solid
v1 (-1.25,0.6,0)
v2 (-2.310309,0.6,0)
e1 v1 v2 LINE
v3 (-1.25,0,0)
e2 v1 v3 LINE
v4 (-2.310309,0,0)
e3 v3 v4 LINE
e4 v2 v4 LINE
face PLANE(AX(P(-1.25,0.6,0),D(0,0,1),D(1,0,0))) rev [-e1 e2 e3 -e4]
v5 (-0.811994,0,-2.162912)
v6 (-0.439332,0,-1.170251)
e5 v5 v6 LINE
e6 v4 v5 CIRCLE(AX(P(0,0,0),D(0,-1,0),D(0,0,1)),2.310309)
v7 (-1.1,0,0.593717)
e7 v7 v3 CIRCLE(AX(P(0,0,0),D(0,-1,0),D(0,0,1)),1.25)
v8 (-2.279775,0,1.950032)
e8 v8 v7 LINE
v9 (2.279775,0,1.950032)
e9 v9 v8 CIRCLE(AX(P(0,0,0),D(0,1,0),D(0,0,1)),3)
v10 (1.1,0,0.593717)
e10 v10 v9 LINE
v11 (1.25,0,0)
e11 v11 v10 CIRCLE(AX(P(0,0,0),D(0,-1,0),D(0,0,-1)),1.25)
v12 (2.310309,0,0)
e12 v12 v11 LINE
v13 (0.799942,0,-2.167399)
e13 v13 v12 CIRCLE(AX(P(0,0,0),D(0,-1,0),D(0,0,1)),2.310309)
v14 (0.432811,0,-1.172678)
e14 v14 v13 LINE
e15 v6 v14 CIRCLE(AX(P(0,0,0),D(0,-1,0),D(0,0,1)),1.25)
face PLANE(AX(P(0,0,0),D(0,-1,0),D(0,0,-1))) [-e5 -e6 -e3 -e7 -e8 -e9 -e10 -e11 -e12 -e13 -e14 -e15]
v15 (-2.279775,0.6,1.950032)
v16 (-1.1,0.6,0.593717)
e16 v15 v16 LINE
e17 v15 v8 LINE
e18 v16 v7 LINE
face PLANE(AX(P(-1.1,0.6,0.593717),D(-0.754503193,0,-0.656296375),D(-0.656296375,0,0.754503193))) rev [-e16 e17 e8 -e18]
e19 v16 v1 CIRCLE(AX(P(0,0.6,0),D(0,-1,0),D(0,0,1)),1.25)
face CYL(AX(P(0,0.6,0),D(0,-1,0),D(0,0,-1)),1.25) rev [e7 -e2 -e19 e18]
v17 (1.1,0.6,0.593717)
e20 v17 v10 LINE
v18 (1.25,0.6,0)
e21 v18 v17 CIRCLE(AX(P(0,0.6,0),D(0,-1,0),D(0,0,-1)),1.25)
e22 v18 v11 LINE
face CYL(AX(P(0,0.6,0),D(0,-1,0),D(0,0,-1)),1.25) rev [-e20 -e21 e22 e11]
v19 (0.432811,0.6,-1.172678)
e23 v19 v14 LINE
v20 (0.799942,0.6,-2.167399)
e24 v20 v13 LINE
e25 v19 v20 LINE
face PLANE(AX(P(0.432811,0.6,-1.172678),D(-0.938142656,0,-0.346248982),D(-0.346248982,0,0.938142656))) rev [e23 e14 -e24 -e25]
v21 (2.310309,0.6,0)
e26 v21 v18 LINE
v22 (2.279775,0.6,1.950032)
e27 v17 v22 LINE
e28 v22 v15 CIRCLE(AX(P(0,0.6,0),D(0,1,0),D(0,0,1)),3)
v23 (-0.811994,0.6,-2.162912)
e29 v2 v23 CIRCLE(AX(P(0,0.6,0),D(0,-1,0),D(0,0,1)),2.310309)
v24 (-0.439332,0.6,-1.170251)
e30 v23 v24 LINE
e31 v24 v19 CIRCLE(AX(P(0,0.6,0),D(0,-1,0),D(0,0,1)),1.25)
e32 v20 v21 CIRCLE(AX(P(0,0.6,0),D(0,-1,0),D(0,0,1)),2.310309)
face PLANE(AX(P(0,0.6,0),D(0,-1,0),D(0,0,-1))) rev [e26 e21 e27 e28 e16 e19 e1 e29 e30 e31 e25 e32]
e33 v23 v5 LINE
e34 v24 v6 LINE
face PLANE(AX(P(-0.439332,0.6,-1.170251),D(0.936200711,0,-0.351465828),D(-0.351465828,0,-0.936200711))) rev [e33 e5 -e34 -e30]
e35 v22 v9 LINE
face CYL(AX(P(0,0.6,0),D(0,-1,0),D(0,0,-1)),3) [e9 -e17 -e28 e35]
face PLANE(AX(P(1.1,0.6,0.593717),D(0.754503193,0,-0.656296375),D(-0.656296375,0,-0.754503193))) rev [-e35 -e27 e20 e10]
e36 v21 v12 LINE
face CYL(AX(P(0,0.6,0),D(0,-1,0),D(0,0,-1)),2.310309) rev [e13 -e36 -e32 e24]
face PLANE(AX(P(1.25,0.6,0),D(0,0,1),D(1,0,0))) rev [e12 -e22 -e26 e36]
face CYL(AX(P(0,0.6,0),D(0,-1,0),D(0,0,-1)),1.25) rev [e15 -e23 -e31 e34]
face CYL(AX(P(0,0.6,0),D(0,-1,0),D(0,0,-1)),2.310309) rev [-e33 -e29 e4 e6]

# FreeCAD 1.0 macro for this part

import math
import FreeCAD as App
import Part
import Sketcher
Q = App.Units.Quantity

doc = App.newDocument("Part")
body = doc.addObject("PartDesign::Body", "Body")

# Sketch on XZ plane
sketch1 = body.newObject("Sketcher::SketchObject", "Sketch")
sketch1.AttachmentSupport = (doc.getObject("XZ_Plane"), [""])
sketch1.MapMode = "FlatFace"
sketch1.addGeometry([
    Part.LineSegment(App.Vector(-2.279775, 1.950032, 0), App.Vector(-1.1, 0.593717, 0)),  # 0
    Part.ArcOfCircle(Part.Circle(App.Vector(0, 0, 0), App.Vector(0, 0, 1), 1.25), math.radians(151.642364), math.radians(180)),  # 1
    Part.LineSegment(App.Vector(-1.25, 0, 0), App.Vector(-2.310309, 0, 0)),  # 2
    Part.ArcOfCircle(Part.Circle(App.Vector(0, 0, 0), App.Vector(0, 0, 1), 2.310309), math.radians(-180), math.radians(-110.576998)),  # 3
    Part.LineSegment(App.Vector(-0.811994, -2.162912, 0), App.Vector(-0.439332, -1.170251, 0)),  # 4
    Part.ArcOfCircle(Part.Circle(App.Vector(0, 0, 0), App.Vector(0, 0, 1), 1.25), math.radians(-110.576998), math.radians(-69.741943)),  # 5
    Part.LineSegment(App.Vector(0.432811, -1.172678, 0), App.Vector(0.799942, -2.167399, 0)),  # 6
    Part.ArcOfCircle(Part.Circle(App.Vector(0, 0, 0), App.Vector(0, 0, 1), 2.310309), math.radians(-69.741943), math.radians(0)),  # 7
    Part.LineSegment(App.Vector(2.310309, 0, 0), App.Vector(1.25, 0, 0)),  # 8
    Part.ArcOfCircle(Part.Circle(App.Vector(0, 0, 0), App.Vector(0, 0, 1), 1.25), math.radians(0), math.radians(28.357636)),  # 9
    Part.LineSegment(App.Vector(1.1, 0.593717, 0), App.Vector(2.279775, 1.950032, 0)),  # 10
    Part.ArcOfCircle(Part.Circle(App.Vector(0, 0, 0), App.Vector(0, 0, 1), 3), math.radians(139.457601), math.radians(400.542399)),  # 11
], False)
sketch1.addConstraint([
    Sketcher.Constraint("Coincident", 0, 2, 1, 1),
    Sketcher.Constraint("Coincident", 1, 2, 2, 1),
    Sketcher.Constraint("Coincident", 2, 2, 3, 1),
    Sketcher.Constraint("Coincident", 3, 2, 4, 1),
    Sketcher.Constraint("Coincident", 4, 2, 5, 1),
    Sketcher.Constraint("Coincident", 5, 2, 6, 1),
    Sketcher.Constraint("Coincident", 6, 2, 7, 1),
    Sketcher.Constraint("Coincident", 7, 2, 8, 1),
    Sketcher.Constraint("Coincident", 8, 2, 9, 1),
    Sketcher.Constraint("Coincident", 9, 2, 10, 1),
    Sketcher.Constraint("Coincident", 10, 2, 11, 2),
    Sketcher.Constraint("Coincident", 11, 1, 0, 1),
    Sketcher.Constraint("Horizontal", 2),
    Sketcher.Constraint("Horizontal", 8),
    Sketcher.Constraint("Coincident", 1, 3, -1, 1),
    Sketcher.Constraint("Coincident", 3, 3, -1, 1),
    Sketcher.Constraint("Coincident", 5, 3, -1, 1),
    Sketcher.Constraint("Coincident", 7, 3, -1, 1),
    Sketcher.Constraint("Coincident", 9, 3, -1, 1),
    Sketcher.Constraint("Coincident", 11, 3, -1, 1),
    Sketcher.Constraint("Equal", 1, 5),
    Sketcher.Constraint("Equal", 3, 7),
    Sketcher.Constraint("Equal", 5, 9),
    Sketcher.Constraint("PointOnObject", 1, 2, -1),
    Sketcher.Constraint("PointOnObject", 7, 2, -1),
    Sketcher.Constraint("Horizontal", 0, 2, 9, 2),
    Sketcher.Constraint("Horizontal", 10, 2, 11, 1),
    Sketcher.Constraint("Radius", 11, Q("3 mm")),
    Sketcher.Constraint("Radius", 1, Q("1.25 mm")),
    Sketcher.Constraint("DistanceX", 0, 2, -1, 1, Q("1.1 mm")),
    Sketcher.Constraint("Radius", 3, Q("2.310309 mm")),
    Sketcher.Constraint("DistanceY", 6, 2, -1, 1, Q("2.167399 mm")),
    Sketcher.Constraint("DistanceY", 4, 2, -1, 1, Q("1.170251 mm")),
    Sketcher.Constraint("DistanceX", -1, 1, 5, 2, Q("0.432811 mm")),
    Sketcher.Constraint("DistanceY", -1, 1, 10, 2, Q("1.950032 mm")),
    Sketcher.Constraint("DistanceY", 3, 2, 4, 2, Q("0.992662 mm")),
])
pad1 = body.newObject("PartDesign::Pad", "Pad")
pad1.Profile = sketch1
pad1.Length = 0.6
pad1.Reversed = True

doc.recompute()
